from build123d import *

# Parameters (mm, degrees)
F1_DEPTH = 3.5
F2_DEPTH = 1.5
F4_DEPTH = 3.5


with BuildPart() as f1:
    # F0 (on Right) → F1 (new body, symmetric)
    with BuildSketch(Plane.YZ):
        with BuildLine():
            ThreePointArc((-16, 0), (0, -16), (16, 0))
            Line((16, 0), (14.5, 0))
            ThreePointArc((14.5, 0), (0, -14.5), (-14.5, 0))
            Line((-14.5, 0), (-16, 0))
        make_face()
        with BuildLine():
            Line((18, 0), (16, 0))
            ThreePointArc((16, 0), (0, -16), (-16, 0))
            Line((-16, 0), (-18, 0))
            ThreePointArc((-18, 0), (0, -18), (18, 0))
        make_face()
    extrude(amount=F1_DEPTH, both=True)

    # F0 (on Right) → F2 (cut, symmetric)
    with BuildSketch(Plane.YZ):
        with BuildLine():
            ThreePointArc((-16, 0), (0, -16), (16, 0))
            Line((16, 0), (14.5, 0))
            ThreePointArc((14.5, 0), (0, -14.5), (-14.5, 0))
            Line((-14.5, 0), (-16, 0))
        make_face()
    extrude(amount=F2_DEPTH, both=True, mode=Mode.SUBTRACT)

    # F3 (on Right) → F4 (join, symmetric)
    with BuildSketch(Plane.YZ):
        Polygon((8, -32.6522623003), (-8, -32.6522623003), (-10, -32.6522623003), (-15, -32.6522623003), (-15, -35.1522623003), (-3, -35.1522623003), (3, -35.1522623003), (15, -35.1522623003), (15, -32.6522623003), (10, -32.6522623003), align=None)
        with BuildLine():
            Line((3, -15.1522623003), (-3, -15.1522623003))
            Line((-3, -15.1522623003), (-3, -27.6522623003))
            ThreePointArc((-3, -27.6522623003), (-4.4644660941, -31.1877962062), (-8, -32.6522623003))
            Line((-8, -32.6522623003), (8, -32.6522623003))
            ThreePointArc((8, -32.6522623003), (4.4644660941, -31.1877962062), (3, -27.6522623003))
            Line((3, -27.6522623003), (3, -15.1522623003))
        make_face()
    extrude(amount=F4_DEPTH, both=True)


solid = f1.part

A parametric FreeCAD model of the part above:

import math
import FreeCAD as App
import Part
import Sketcher
from FreeCAD import Vector
Q = App.Units.Quantity

doc = App.newDocument("Part")
body = doc.addObject("PartDesign::Body", "Body")

# Sketch on YZ plane
sketch1 = body.newObject("Sketcher::SketchObject", "Sketch")
sketch1.AttachmentSupport = (doc.getObject("YZ_Plane"), [""])
sketch1.MapMode = "FlatFace"
sketch1.addGeometry(Part.ArcOfCircle(Part.Circle(Vector(0, 0, 0), Vector(0, 0, 1), 14.5), math.radians(180), math.radians(360)), False)
sketch1.addGeometry(Part.LineSegment(Vector(-14.5, 0, 0), Vector(-18, 0, 0)), False)
sketch1.addGeometry(Part.ArcOfCircle(Part.Circle(Vector(0, 0, 0), Vector(0, 0, 1), 18), math.radians(180), math.radians(360)), False)
sketch1.addGeometry(Part.LineSegment(Vector(18, 0, 0), Vector(14.5, 0, 0)), False)
sketch1.addConstraint(Sketcher.Constraint("Coincident", 0, 1, 1, 1))
sketch1.addConstraint(Sketcher.Constraint("Coincident", 1, 2, 2, 1))
sketch1.addConstraint(Sketcher.Constraint("Coincident", 2, 2, 3, 1))
sketch1.addConstraint(Sketcher.Constraint("Coincident", 3, 2, 0, 2))
sketch1.addConstraint(Sketcher.Constraint("Horizontal", 1))
sketch1.addConstraint(Sketcher.Constraint("Horizontal", 3))
sketch1.addConstraint(Sketcher.Constraint("Coincident", 0, 3, -1, 1))
sketch1.addConstraint(Sketcher.Constraint("Coincident", 2, 3, -1, 1))
sketch1.addConstraint(Sketcher.Constraint("PointOnObject", 0, 1, -1))
sketch1.addConstraint(Sketcher.Constraint("PointOnObject", 2, 2, -1))
sketch1.addConstraint(Sketcher.Constraint("Radius", 2, Q("18 mm")))
sketch1.addConstraint(Sketcher.Constraint("Radius", 0, Q("14.5 mm")))
pad1 = body.newObject("PartDesign::Pad", "Pad")
pad1.Profile = sketch1
pad1.Length = 7
pad1.Midplane = True

# Sketch on YZ plane
sketch2 = body.newObject("Sketcher::SketchObject", "Sketch001")
sketch2.AttachmentSupport = (doc.getObject("YZ_Plane"), [""])
sketch2.MapMode = "FlatFace"
sketch2.addGeometry(Part.ArcOfCircle(Part.Circle(Vector(0, 0, 0), Vector(0, 0, 1), 16), math.radians(180), math.radians(360)), False)
sketch2.addGeometry(Part.LineSegment(Vector(16, 0, 0), Vector(14.5, 0, 0)), False)
sketch2.addGeometry(Part.ArcOfCircle(Part.Circle(Vector(0, 0, 0), Vector(0, 0, 1), 14.5), math.radians(180), math.radians(360)), False)
sketch2.addGeometry(Part.LineSegment(Vector(-14.5, 0, 0), Vector(-16, 0, 0)), False)
sketch2.addConstraint(Sketcher.Constraint("Coincident", 0, 2, 1, 1))
sketch2.addConstraint(Sketcher.Constraint("Coincident", 1, 2, 2, 2))
sketch2.addConstraint(Sketcher.Constraint("Coincident", 2, 1, 3, 1))
sketch2.addConstraint(Sketcher.Constraint("Coincident", 3, 2, 0, 1))
sketch2.addConstraint(Sketcher.Constraint("Horizontal", 1))
sketch2.addConstraint(Sketcher.Constraint("Horizontal", 3))
sketch2.addConstraint(Sketcher.Constraint("Coincident", 0, 3, -1, 1))
sketch2.addConstraint(Sketcher.Constraint("Coincident", 2, 3, -1, 1))
sketch2.addConstraint(Sketcher.Constraint("PointOnObject", 0, 2, -1))
sketch2.addConstraint(Sketcher.Constraint("PointOnObject", 2, 1, -1))
sketch2.addConstraint(Sketcher.Constraint("Radius", 0, Q("16 mm")))
sketch2.addConstraint(Sketcher.Constraint("Radius", 2, Q("14.5 mm")))
pocket1 = body.newObject("PartDesign::Pocket", "Pocket")
pocket1.Profile = sketch2
pocket1.Length = 3
pocket1.Midplane = True

# Sketch on YZ plane
sketch3 = body.newObject("Sketcher::SketchObject", "Sketch002")
sketch3.AttachmentSupport = (doc.getObject("YZ_Plane"), [""])
sketch3.MapMode = "FlatFace"
sketch3.addGeometry(Part.LineSegment(Vector(-15, -32.7, 0), Vector(-15, -35.2, 0)), False)
sketch3.addGeometry(Part.LineSegment(Vector(-15, -35.2, 0), Vector(15, -35.2, 0)), False)
sketch3.addGeometry(Part.LineSegment(Vector(15, -35.2, 0), Vector(15, -32.7, 0)), False)
sketch3.addGeometry(Part.LineSegment(Vector(15, -32.7, 0), Vector(8, -32.7, 0)), False)
sketch3.addGeometry(Part.ArcOfCircle(Part.Circle(Vector(8, -27.7, 0), Vector(0, 0, 1), 5), math.radians(180), math.radians(270)), False)
sketch3.addGeometry(Part.LineSegment(Vector(3, -27.7, 0), Vector(3, -15.2, 0)), False)
sketch3.addGeometry(Part.LineSegment(Vector(3, -15.2, 0), Vector(-3, -15.2, 0)), False)
sketch3.addGeometry(Part.LineSegment(Vector(-3, -15.2, 0), Vector(-3, -27.7, 0)), False)
sketch3.addGeometry(Part.ArcOfCircle(Part.Circle(Vector(-8, -27.7, 0), Vector(0, 0, 1), 5), math.radians(-90), math.radians(0)), False)
sketch3.addGeometry(Part.LineSegment(Vector(-8, -32.7, 0), Vector(-15, -32.7, 0)), False)
sketch3.addConstraint(Sketcher.Constraint("Coincident", 0, 2, 1, 1))
sketch3.addConstraint(Sketcher.Constraint("Coincident", 1, 2, 2, 1))
sketch3.addConstraint(Sketcher.Constraint("Coincident", 2, 2, 3, 1))
sketch3.addConstraint(Sketcher.Constraint("Tangent", 3, 2, 4, 2))
sketch3.addConstraint(Sketcher.Constraint("Tangent", 4, 1, 5, 1))
sketch3.addConstraint(Sketcher.Constraint("Coincident", 5, 2, 6, 1))
sketch3.addConstraint(Sketcher.Constraint("Coincident", 6, 2, 7, 1))
sketch3.addConstraint(Sketcher.Constraint("Tangent", 7, 2, 8, 2))
sketch3.addConstraint(Sketcher.Constraint("Tangent", 8, 1, 9, 1))
sketch3.addConstraint(Sketcher.Constraint("Coincident", 9, 2, 0, 1))
sketch3.addConstraint(Sketcher.Constraint("Vertical", 0))
sketch3.addConstraint(Sketcher.Constraint("Horizontal", 1))
sketch3.addConstraint(Sketcher.Constraint("Vertical", 2))
sketch3.addConstraint(Sketcher.Constraint("Horizontal", 3))
sketch3.addConstraint(Sketcher.Constraint("Vertical", 5))
sketch3.addConstraint(Sketcher.Constraint("Horizontal", 6))
sketch3.addConstraint(Sketcher.Constraint("Vertical", 7))
sketch3.addConstraint(Sketcher.Constraint("Horizontal", 9))
sketch3.addConstraint(Sketcher.Constraint("Equal", 4, 8))
sketch3.addConstraint(Sketcher.Constraint("Symmetric", 4, 3, 8, 3, -2))
sketch3.addConstraint(Sketcher.Constraint("Equal", 3, 9))
sketch3.addConstraint(Sketcher.Constraint("Radius", 4, Q("5 mm")))
sketch3.addConstraint(Sketcher.Constraint("DistanceX", 1, 1, 1, 2, Q("30 mm")))
sketch3.addConstraint(Sketcher.Constraint("DistanceX", 3, 2, 3, 1, Q("7 mm")))
sketch3.addConstraint(Sketcher.Constraint("DistanceY", 0, 2, 0, 1, Q("2.5 mm")))
sketch3.addConstraint(Sketcher.Constraint("DistanceY", 5, 1, 5, 2, Q("12.5 mm")))
sketch3.addConstraint(Sketcher.Constraint("DistanceY", 4, 3, -1, 1, Q("27.652262 mm")))
pad2 = body.newObject("PartDesign::Pad", "Pad001")
pad2.Profile = sketch3
pad2.Length = 7
pad2.Midplane = True

doc.recompute()
